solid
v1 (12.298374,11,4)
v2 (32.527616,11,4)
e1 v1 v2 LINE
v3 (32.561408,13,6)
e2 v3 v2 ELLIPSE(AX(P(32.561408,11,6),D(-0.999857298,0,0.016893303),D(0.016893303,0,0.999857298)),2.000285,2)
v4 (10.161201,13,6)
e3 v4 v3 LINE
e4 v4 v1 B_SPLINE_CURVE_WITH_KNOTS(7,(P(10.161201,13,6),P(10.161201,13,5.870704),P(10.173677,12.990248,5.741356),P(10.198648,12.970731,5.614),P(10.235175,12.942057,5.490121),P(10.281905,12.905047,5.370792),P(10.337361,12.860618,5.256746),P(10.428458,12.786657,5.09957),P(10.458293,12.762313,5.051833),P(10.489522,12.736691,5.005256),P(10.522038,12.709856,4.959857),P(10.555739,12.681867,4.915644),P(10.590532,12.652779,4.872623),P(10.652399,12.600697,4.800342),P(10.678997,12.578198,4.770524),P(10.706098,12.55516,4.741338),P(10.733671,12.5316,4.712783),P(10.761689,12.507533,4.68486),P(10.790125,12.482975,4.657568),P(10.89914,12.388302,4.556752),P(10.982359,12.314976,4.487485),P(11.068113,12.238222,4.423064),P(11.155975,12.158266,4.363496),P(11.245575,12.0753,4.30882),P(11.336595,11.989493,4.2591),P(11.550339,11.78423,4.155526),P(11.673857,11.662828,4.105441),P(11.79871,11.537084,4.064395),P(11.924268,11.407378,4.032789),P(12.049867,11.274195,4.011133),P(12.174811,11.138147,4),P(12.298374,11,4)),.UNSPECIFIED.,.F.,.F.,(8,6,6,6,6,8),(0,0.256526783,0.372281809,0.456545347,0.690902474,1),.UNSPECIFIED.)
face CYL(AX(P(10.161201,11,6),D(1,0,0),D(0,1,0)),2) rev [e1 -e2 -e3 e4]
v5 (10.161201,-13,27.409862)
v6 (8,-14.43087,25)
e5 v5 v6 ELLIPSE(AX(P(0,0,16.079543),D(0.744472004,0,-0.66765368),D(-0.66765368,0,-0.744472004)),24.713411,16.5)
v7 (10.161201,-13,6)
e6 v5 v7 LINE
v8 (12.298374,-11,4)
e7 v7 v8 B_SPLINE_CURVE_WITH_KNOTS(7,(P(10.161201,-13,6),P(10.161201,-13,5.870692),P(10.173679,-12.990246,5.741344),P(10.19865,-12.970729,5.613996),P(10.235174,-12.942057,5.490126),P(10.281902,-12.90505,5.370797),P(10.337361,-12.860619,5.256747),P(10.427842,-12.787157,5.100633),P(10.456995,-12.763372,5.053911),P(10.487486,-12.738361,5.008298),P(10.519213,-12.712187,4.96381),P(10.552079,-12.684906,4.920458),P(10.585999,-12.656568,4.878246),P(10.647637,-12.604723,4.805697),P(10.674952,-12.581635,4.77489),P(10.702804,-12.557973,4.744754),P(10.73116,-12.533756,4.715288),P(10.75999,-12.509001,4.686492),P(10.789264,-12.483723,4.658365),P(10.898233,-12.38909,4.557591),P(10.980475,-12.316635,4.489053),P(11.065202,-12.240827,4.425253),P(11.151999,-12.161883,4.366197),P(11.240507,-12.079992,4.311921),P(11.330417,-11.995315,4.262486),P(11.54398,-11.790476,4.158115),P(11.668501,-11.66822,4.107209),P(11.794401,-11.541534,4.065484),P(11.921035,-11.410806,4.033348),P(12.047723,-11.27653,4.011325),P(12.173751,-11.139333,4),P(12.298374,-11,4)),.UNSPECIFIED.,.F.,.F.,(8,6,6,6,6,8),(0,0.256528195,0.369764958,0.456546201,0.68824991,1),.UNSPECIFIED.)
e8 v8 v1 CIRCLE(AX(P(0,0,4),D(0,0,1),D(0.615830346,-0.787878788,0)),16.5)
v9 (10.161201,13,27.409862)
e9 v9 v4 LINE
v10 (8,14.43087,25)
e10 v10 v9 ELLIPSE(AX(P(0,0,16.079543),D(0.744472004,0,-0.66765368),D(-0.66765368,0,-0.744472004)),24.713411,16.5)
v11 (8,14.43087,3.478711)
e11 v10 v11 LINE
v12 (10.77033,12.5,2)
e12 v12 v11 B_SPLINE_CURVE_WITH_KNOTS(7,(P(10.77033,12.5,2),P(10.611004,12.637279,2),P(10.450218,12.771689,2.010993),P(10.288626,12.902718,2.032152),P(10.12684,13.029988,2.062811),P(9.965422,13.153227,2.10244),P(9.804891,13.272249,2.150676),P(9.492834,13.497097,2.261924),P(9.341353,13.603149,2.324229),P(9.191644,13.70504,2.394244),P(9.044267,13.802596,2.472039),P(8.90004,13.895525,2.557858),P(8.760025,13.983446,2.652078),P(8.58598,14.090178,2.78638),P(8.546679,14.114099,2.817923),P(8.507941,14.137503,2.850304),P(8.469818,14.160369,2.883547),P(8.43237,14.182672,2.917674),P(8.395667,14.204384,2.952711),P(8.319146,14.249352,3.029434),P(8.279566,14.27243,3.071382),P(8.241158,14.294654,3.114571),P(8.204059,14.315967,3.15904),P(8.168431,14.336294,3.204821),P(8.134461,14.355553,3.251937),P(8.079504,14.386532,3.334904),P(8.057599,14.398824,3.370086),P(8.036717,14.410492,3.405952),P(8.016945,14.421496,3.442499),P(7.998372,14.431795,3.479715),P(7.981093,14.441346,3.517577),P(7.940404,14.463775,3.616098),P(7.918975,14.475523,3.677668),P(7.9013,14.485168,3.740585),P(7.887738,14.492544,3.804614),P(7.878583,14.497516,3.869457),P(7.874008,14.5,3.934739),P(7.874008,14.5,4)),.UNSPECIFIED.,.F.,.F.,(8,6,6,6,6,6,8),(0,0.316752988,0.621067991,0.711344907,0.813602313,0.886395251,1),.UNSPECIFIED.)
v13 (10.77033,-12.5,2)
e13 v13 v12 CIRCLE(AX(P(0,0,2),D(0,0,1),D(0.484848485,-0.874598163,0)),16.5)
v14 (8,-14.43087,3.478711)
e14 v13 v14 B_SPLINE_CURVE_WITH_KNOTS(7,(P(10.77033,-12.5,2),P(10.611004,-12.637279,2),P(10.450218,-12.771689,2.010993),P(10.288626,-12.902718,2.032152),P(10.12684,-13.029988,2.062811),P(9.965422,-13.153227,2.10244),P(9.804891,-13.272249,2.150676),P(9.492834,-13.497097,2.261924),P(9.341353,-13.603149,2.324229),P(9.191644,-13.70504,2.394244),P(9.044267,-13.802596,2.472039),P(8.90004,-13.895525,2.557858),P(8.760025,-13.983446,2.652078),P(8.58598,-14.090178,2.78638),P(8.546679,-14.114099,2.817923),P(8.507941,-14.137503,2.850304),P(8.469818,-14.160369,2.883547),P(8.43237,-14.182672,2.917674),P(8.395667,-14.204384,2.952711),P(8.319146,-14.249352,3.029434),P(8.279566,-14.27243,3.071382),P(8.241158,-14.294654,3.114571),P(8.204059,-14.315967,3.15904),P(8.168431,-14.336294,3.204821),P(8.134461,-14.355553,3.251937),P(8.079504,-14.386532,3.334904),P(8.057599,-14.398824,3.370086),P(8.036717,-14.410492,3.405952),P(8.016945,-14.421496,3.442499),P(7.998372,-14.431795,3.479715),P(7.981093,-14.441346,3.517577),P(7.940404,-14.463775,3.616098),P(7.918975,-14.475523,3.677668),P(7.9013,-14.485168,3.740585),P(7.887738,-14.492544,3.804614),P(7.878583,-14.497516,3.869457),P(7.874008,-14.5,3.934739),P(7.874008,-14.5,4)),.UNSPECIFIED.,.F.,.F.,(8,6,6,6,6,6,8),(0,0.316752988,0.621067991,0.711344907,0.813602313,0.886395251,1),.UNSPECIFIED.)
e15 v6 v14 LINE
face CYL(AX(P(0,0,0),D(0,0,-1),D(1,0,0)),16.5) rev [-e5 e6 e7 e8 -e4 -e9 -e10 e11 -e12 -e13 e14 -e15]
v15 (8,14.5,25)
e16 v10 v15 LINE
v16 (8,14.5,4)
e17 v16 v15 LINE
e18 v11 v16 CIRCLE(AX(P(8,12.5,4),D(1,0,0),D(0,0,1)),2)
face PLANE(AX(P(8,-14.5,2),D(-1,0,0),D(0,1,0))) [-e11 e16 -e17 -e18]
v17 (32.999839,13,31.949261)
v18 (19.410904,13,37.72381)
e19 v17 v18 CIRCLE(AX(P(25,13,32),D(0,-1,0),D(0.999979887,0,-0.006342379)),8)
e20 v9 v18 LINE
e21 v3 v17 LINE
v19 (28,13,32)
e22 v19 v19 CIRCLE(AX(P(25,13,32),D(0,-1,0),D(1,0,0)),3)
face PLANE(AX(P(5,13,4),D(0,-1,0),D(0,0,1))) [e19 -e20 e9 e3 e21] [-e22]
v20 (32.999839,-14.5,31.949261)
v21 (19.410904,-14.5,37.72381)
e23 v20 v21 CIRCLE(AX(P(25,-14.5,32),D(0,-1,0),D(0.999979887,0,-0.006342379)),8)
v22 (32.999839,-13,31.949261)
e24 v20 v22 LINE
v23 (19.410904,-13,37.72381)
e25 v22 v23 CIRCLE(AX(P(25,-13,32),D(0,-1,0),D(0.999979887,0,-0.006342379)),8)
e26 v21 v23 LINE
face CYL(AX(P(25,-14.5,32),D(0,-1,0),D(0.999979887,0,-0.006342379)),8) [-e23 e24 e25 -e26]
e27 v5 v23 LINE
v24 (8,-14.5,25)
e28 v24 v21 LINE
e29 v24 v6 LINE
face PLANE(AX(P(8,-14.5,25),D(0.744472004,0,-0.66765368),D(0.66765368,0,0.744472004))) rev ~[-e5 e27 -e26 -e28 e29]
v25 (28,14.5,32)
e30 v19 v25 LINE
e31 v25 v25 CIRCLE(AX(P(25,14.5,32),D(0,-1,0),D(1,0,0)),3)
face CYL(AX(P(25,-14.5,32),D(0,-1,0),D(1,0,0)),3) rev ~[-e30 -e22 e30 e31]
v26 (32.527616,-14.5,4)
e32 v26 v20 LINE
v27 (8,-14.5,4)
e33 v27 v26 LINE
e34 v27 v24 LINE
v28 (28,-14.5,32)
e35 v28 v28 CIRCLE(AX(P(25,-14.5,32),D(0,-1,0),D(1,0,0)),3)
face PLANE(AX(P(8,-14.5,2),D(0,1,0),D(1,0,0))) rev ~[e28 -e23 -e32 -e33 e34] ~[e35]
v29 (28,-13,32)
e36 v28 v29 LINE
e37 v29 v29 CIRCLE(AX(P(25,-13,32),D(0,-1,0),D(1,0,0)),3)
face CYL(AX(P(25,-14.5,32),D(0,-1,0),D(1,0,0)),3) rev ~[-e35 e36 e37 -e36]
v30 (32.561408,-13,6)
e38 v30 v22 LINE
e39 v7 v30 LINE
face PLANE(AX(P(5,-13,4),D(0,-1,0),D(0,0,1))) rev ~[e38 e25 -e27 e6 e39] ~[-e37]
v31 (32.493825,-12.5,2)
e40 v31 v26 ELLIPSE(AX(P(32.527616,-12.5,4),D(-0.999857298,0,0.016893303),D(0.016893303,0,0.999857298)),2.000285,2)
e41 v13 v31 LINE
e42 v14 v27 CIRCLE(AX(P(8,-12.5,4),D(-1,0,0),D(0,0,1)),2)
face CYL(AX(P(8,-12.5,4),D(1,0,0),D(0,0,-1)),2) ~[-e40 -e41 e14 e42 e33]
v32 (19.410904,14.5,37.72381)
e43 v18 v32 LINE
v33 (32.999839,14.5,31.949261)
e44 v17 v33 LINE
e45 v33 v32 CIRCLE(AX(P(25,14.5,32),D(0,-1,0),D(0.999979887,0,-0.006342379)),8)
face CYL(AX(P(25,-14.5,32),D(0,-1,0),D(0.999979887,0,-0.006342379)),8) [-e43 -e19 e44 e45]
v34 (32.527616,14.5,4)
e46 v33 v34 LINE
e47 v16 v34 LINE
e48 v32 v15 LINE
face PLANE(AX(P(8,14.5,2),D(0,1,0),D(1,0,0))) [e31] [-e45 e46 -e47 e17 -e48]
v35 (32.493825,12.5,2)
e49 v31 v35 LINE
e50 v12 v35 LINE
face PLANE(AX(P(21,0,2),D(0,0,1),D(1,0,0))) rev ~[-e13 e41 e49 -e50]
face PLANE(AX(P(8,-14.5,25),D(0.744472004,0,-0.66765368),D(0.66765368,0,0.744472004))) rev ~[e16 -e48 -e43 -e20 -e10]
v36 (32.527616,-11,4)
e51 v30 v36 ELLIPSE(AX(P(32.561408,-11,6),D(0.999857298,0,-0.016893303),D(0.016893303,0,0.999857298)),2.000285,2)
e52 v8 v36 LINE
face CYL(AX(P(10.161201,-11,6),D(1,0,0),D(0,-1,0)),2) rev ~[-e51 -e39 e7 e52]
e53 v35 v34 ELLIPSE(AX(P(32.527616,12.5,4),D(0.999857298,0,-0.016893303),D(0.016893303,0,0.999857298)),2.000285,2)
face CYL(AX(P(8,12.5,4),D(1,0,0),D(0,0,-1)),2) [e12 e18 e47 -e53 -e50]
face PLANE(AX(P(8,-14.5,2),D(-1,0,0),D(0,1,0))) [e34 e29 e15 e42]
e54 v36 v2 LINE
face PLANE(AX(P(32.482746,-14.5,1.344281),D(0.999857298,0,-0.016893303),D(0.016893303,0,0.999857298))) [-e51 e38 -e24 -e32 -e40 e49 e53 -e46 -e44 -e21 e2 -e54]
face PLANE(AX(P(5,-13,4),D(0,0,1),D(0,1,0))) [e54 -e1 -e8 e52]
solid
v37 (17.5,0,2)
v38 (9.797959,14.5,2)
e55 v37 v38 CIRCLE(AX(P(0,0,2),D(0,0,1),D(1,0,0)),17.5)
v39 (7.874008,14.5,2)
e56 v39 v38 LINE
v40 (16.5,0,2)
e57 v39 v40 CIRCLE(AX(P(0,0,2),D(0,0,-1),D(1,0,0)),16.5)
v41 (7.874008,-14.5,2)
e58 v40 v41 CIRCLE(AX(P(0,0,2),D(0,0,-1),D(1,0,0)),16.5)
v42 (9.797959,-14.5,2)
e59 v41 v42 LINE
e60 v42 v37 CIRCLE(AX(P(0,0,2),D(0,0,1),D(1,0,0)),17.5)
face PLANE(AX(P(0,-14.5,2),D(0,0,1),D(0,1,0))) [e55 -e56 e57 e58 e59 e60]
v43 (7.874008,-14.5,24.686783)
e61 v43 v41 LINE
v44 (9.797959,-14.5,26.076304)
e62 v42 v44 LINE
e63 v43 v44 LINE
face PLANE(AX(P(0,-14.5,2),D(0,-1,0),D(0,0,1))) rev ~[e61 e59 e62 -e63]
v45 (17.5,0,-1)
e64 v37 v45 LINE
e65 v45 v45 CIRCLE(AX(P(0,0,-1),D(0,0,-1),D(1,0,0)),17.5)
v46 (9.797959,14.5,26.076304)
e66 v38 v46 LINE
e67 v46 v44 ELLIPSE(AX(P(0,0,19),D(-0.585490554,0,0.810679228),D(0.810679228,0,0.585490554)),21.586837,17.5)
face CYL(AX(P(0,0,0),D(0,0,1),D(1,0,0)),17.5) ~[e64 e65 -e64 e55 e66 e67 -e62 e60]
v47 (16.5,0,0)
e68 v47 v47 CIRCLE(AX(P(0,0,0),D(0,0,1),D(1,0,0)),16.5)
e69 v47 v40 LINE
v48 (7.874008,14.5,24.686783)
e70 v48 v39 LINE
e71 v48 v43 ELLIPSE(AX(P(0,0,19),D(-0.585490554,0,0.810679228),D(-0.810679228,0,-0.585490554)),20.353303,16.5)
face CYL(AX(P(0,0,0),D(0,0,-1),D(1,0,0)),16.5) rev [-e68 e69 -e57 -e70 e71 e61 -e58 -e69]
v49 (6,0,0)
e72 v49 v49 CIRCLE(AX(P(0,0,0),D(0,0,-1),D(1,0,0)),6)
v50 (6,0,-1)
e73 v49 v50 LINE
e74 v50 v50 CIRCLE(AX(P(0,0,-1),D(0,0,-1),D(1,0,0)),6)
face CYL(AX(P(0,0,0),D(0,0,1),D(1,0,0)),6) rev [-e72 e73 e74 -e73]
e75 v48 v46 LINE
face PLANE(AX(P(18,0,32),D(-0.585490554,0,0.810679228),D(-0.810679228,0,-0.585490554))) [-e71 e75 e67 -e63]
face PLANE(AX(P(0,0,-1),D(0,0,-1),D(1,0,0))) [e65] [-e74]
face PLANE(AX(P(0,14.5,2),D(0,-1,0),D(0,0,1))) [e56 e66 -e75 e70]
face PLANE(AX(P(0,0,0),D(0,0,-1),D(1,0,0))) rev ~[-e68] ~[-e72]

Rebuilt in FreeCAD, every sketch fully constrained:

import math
import FreeCAD as App
import Part
import Sketcher


def edges_at(feature, points):
    """Names of the edges that pass closest to the given points."""
    edges = feature.Shape.Edges
    near = lambda p: min(range(len(edges)), key=lambda i: edges[i].distToShape(Part.Vertex(*p))[0])
    return sorted({f"Edge{near(p) + 1}" for p in points})

doc = App.newDocument("Part")
body = doc.addObject("PartDesign::Body", "Body")

# Sketch on YZ plane
sketch1 = body.newObject("Sketcher::SketchObject", "Sketch")
sketch1.AttachmentSupport = (doc.getObject("YZ_Plane"), [""])
sketch1.MapMode = "FlatFace"
sketch1.addGeometry([
    Part.LineSegment(App.Vector(-14, 34, 0), App.Vector(-14, 2, 0)),
    Part.LineSegment(App.Vector(-14, 2, 0), App.Vector(14, 2, 0)),
    Part.LineSegment(App.Vector(14, 2, 0), App.Vector(14, 34, 0)),
    Part.LineSegment(App.Vector(14, 34, 0), App.Vector(-14, 34, 0)),
], False)
sketch1.addConstraint([
    Sketcher.Constraint("Coincident", 0, 2, 1, 1),
    Sketcher.Constraint("Coincident", 1, 2, 2, 1),
    Sketcher.Constraint("Coincident", 2, 2, 3, 1),
    Sketcher.Constraint("Coincident", 3, 2, 0, 1),
    Sketcher.Constraint("Vertical", 0),
    Sketcher.Constraint("Horizontal", 1),
    Sketcher.Constraint("Vertical", 2),
    Sketcher.Constraint("Horizontal", 3),
    Sketcher.Constraint("DistanceX", 1, 1, 1, 2, 29.0),
    Sketcher.Constraint("DistanceY", 0, 2, 0, 1, 32.0),
    Sketcher.Constraint("DistanceY", -1, 1, 0, 2, 2.0),
    Sketcher.Constraint("DistanceX", 0, 2, -1, 1, 14.5),
])
pad1 = body.newObject("PartDesign::Pad", "Pad")
pad1.Profile = sketch1
pad1.Length = 18
body2 = doc.addObject("PartDesign::Body", "Body001")

# Sketch on XZ plane
sketch2 = body2.newObject("Sketcher::SketchObject", "Sketch001")
sketch2.AttachmentSupport = (doc.getObject("XZ_Plane001"), [""])
sketch2.MapMode = "FlatFace"
sketch2.addGeometry([
    Part.LineSegment(App.Vector(18, 32, 0), App.Vector(-28, 32, 0)),  # 0
    Part.LineSegment(App.Vector(-28, 32, 0), App.Vector(-28, 0, 0)),  # 1
    Part.LineSegment(App.Vector(-28, 0, 0), App.Vector(-18, 0, 0)),  # 2
    Part.LineSegment(App.Vector(-18, 0, 0), App.Vector(-18, 6, 0)),  # 3
    Part.LineSegment(App.Vector(-18, 6, 0), App.Vector(18, 32, 0)),  # 4
], False)
sketch2.addConstraint([
    Sketcher.Constraint("Coincident", 0, 2, 1, 1),
    Sketcher.Constraint("Coincident", 1, 2, 2, 1),
    Sketcher.Constraint("Coincident", 2, 2, 3, 1),
    Sketcher.Constraint("Coincident", 3, 2, 4, 1),
    Sketcher.Constraint("Coincident", 4, 2, 0, 1),
    Sketcher.Constraint("Horizontal", 0),
    Sketcher.Constraint("Vertical", 1),
    Sketcher.Constraint("Horizontal", 2),
    Sketcher.Constraint("Vertical", 3),
    Sketcher.Constraint("PointOnObject", 1, 2, -1),
    Sketcher.Constraint("DistanceX", 0, 2, 0, 1, 46.0),
    Sketcher.Constraint("DistanceX", 2, 1, 2, 2, 10.0),
    Sketcher.Constraint("DistanceY", 1, 2, 1, 1, 32.0),
    Sketcher.Constraint("DistanceY", 3, 1, 3, 2, 6.0),
    Sketcher.Constraint("DistanceX", 0, 2, -1, 1, 28.0),
])
pad2 = body2.newObject("PartDesign::Pad", "Pad001")
pad2.Profile = sketch2
pad2.Length = 36
pad2.Midplane = True
body3 = doc.addObject("PartDesign::Body", "Body002")

# Sketch on XY plane
sketch3 = body3.newObject("Sketcher::SketchObject", "Sketch002")
sketch3.AttachmentSupport = (doc.getObject("XY_Plane002"), [""])
sketch3.MapMode = "FlatFace"
sketch3.addGeometry([
    Part.Circle(App.Vector(0, 0, 0), App.Vector(0, 0, 1), 18),
    Part.Circle(App.Vector(0, 0, 0), App.Vector(0, 0, 1), 16),
], False)
sketch3.addConstraint([
    Sketcher.Constraint("Coincident", 0, 3, -1, 1),
    Sketcher.Constraint("Coincident", 1, 3, -1, 1),
    Sketcher.Constraint("Diameter", 0, 35.0),
    Sketcher.Constraint("Diameter", 1, 33.0),
])
pad3 = body3.newObject("PartDesign::Pad", "Pad002")
pad3.Profile = sketch3
pad3.Length = 32

# Sketch on XY plane
sketch4 = body3.newObject("Sketcher::SketchObject", "Sketch003")
sketch4.AttachmentSupport = (doc.getObject("XY_Plane002"), [""])
sketch4.MapMode = "FlatFace"
sketch4.addGeometry([
    Part.Circle(App.Vector(0, 0, 0), App.Vector(0, 0, 1), 18),
    Part.Circle(App.Vector(0, 0, 0), App.Vector(0, 0, 1), 6),
], False)
sketch4.addConstraint([
    Sketcher.Constraint("Coincident", 0, 3, -1, 1),
    Sketcher.Constraint("Coincident", 1, 3, -1, 1),
    Sketcher.Constraint("Diameter", 0, 35.0),
    Sketcher.Constraint("Diameter", 1, 12.0),
])
pad4 = body3.newObject("PartDesign::Pad", "Pad003")
pad4.Profile = sketch4
pad4.Length = 1
pad4.Reversed = True
doc.recompute()

boolean = body3.newObject("PartDesign::Boolean", "Boolean")
boolean.Type = "Cut"
boolean.addObjects([body2])
doc.recompute()

boolean2 = body3.newObject("PartDesign::Boolean", "Boolean001")
boolean2.Type = "Cut"
boolean2.addObjects([body])
body4 = doc.addObject("PartDesign::Body", "Body003")

# Sketch on XY plane
sketch5 = body4.newObject("Sketcher::SketchObject", "Sketch004")
sketch5.AttachmentSupport = (doc.getObject("XY_Plane003"), [""])
sketch5.MapMode = "FlatFace"
sketch5.AttachmentOffset = App.Placement(App.Vector(0, 0, 2), App.Rotation())
sketch5.addGeometry([
    Part.LineSegment(App.Vector(8, 14, 0), App.Vector(8, -14, 0)),
    Part.LineSegment(App.Vector(8, -14, 0), App.Vector(34, -14, 0)),
    Part.LineSegment(App.Vector(34, -14, 0), App.Vector(34, 14, 0)),
    Part.LineSegment(App.Vector(34, 14, 0), App.Vector(8, 14, 0)),
], False)
sketch5.addConstraint([
    Sketcher.Constraint("Coincident", 0, 2, 1, 1),
    Sketcher.Constraint("Coincident", 1, 2, 2, 1),
    Sketcher.Constraint("Coincident", 2, 2, 3, 1),
    Sketcher.Constraint("Coincident", 3, 2, 0, 1),
    Sketcher.Constraint("Vertical", 0),
    Sketcher.Constraint("Horizontal", 1),
    Sketcher.Constraint("Vertical", 2),
    Sketcher.Constraint("Horizontal", 3),
    Sketcher.Constraint("DistanceX", 1, 1, 1, 2, 26.0),
    Sketcher.Constraint("DistanceY", 0, 2, 0, 1, 29.0),
    Sketcher.Constraint("DistanceX", -1, 1, 0, 2, 8.0),
    Sketcher.Constraint("DistanceY", 0, 2, -1, 1, 14.5),
])
pad5 = body4.newObject("PartDesign::Pad", "Pad004")
pad5.Profile = sketch5
pad5.Length = 39

# Sketch on YZ plane
sketch6 = body4.newObject("Sketcher::SketchObject", "Sketch005")
sketch6.AttachmentSupport = (doc.getObject("YZ_Plane003"), [""])
sketch6.MapMode = "FlatFace"
sketch6.AttachmentOffset = App.Placement(App.Vector(0, 0, 5), App.Rotation())
sketch6.addGeometry([
    Part.LineSegment(App.Vector(-13, 54, 0), App.Vector(-13, 4, 0)),
    Part.LineSegment(App.Vector(-13, 4, 0), App.Vector(13, 4, 0)),
    Part.LineSegment(App.Vector(13, 4, 0), App.Vector(13, 54, 0)),
    Part.LineSegment(App.Vector(13, 54, 0), App.Vector(-13, 54, 0)),
], False)
sketch6.addConstraint([
    Sketcher.Constraint("Coincident", 0, 2, 1, 1),
    Sketcher.Constraint("Coincident", 1, 2, 2, 1),
    Sketcher.Constraint("Coincident", 2, 2, 3, 1),
    Sketcher.Constraint("Coincident", 3, 2, 0, 1),
    Sketcher.Constraint("Vertical", 0),
    Sketcher.Constraint("Horizontal", 1),
    Sketcher.Constraint("Vertical", 2),
    Sketcher.Constraint("Horizontal", 3),
    Sketcher.Constraint("DistanceX", 1, 1, 1, 2, 26.0),
    Sketcher.Constraint("DistanceY", 0, 2, 0, 1, 50.0),
    Sketcher.Constraint("DistanceX", 0, 2, -1, 1, 13.0),
    Sketcher.Constraint("DistanceY", -1, 1, 0, 2, 4.0),
])
pocket1 = body4.newObject("PartDesign::Pocket", "Pocket")
pocket1.Profile = sketch6
pocket1.Length = 30
pocket1.Reversed = True

# Sketch on XY plane
sketch7 = body4.newObject("Sketcher::SketchObject", "Sketch006")
sketch7.AttachmentSupport = (doc.getObject("XY_Plane003"), [""])
sketch7.MapMode = "FlatFace"
sketch7.addGeometry(Part.Circle(App.Vector(0, 0, 0), App.Vector(0, 0, 1), 16), False)
sketch7.addConstraint([
    Sketcher.Constraint("Coincident", 0, 3, -1, 1),
    Sketcher.Constraint("Diameter", 0, 33.0),
])
pocket2 = body4.newObject("PartDesign::Pocket", "Pocket001")
pocket2.Profile = sketch7
pocket2.Length = 42
pocket2.Reversed = True

# Sketch on XZ plane
sketch8 = body4.newObject("Sketcher::SketchObject", "Sketch007")
sketch8.AttachmentSupport = (doc.getObject("XZ_Plane003"), [""])
sketch8.MapMode = "FlatFace"
sketch8.AttachmentOffset = App.Placement(App.Vector(0, 0, 14.5), App.Rotation())
sketch8.addGeometry(Part.Circle(App.Vector(25, 32, 0), App.Vector(0, 0, 1), 3), False)
sketch8.addConstraint([
    Sketcher.Constraint("Diameter", 0, 6.0),
    Sketcher.Constraint("DistanceX", -1, 1, 0, 3, 25.0),
    Sketcher.Constraint("DistanceY", -1, 1, 0, 3, 32.0),
])
pocket3 = body4.newObject("PartDesign::Pocket", "Pocket002")
pocket3.Profile = sketch8
pocket3.Length = 30

# Sketch on XZ plane
sketch9 = body4.newObject("Sketcher::SketchObject", "Sketch008")
sketch9.AttachmentSupport = (doc.getObject("XZ_Plane003"), [""])
sketch9.MapMode = "FlatFace"
sketch9.AttachmentOffset = App.Placement(App.Vector(0, 0, 14.5), App.Rotation())
sketch9.addGeometry([
    Part.LineSegment(App.Vector(33, 32, 0), App.Vector(32, 1, 0)),  # 0
    Part.LineSegment(App.Vector(32, 1, 0), App.Vector(38, 1, 0)),  # 1
    Part.LineSegment(App.Vector(38, 1, 0), App.Vector(38, 44, 0)),  # 2
    Part.LineSegment(App.Vector(38, 44, 0), App.Vector(8, 44, 0)),  # 3
    Part.LineSegment(App.Vector(8, 44, 0), App.Vector(8, 25, 0)),  # 4
    Part.LineSegment(App.Vector(8, 25, 0), App.Vector(19, 38, 0)),  # 5
    Part.ArcOfCircle(Part.Circle(App.Vector(25, 32, 0), App.Vector(0, 0, 1), 8), math.radians(0), math.radians(134)),  # 6
], False)
sketch9.addConstraint([
    Sketcher.Constraint("Coincident", 0, 2, 1, 1),
    Sketcher.Constraint("Coincident", 1, 2, 2, 1),
    Sketcher.Constraint("Coincident", 2, 2, 3, 1),
    Sketcher.Constraint("Coincident", 3, 2, 4, 1),
    Sketcher.Constraint("Coincident", 4, 2, 5, 1),
    Sketcher.Constraint("Coincident", 5, 2, 6, 2),
    Sketcher.Constraint("Coincident", 6, 1, 0, 1),
    Sketcher.Constraint("Horizontal", 1),
    Sketcher.Constraint("Vertical", 2),
    Sketcher.Constraint("Horizontal", 3),
    Sketcher.Constraint("Vertical", 4),
    Sketcher.Constraint("Radius", 6, 8.0),
    Sketcher.Constraint("DistanceX", -1, 1, 6, 3, 25.0),
    Sketcher.Constraint("DistanceY", -1, 1, 6, 3, 32.0),
    Sketcher.Constraint("DistanceX", -1, 1, 3, 2, 8.0),
    Sketcher.Constraint("DistanceY", -1, 1, 4, 2, 25.0),
    Sketcher.Constraint("DistanceX", 1, 1, 1, 2, 5.123379),
    Sketcher.Constraint("Distance", 0, 30.609348),
    Sketcher.Constraint("DistanceX", 3, 2, 3, 1, 29.606125),
    Sketcher.Constraint("DistanceY", 2, 1, 2, 2, 42.468303),
    Sketcher.Constraint("DistanceY", 4, 2, 4, 1, 18.812584),
    Sketcher.Constraint("DistanceY", -1, 1, 5, 2, 37.72381),
])
pocket4 = body4.newObject("PartDesign::Pocket", "Pocket003")
pocket4.Profile = sketch9
pocket4.Length = 30
doc.recompute()

fillet = body4.newObject("PartDesign::Fillet", "Fillet")
fillet.Base = (pocket4, edges_at(pocket4, [
    (20.247, -14.5, 2),
    (21.344, -13, 4),
    (21.344, 13, 4),
    (20.247, 14.5, 2),
]))
fillet.Radius = 2

doc.recompute()
